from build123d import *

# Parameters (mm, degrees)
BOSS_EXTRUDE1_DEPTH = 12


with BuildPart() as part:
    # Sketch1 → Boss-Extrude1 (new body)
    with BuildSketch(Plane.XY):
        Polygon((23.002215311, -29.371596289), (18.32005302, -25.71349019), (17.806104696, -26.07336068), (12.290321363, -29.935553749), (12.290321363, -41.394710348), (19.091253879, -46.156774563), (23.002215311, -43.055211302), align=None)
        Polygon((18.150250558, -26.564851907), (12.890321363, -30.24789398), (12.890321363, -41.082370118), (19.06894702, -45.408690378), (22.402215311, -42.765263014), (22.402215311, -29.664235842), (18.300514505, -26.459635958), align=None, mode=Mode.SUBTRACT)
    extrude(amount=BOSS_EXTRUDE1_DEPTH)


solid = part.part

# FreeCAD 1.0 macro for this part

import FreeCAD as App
import Part
import Sketcher

V = App.Vector
Q = App.Units.Quantity

doc = App.newDocument("Part")
body = doc.addObject("PartDesign::Body", "Body")

sketch1 = body.newObject("Sketcher::SketchObject", "Sketch")
sketch1.AttachmentSupport = (doc.getObject("XY_Plane"), [""])
sketch1.MapMode = "FlatFace"
sketch1.addGeometry(Part.LineSegment(V(23, -29.37, 0), V(18.32, -25.71, 0)), False)
sketch1.addGeometry(Part.LineSegment(V(18.32, -25.71, 0), V(17.81, -26.07, 0)), False)
sketch1.addGeometry(Part.LineSegment(V(17.81, -26.07, 0), V(12.29, -29.94, 0)), False)
sketch1.addGeometry(Part.LineSegment(V(12.29, -29.94, 0), V(12.29, -41.39, 0)), False)
sketch1.addGeometry(Part.LineSegment(V(12.29, -41.39, 0), V(19.09, -46.16, 0)), False)
sketch1.addGeometry(Part.LineSegment(V(19.09, -46.16, 0), V(23, -43.06, 0)), False)
sketch1.addGeometry(Part.LineSegment(V(23, -43.06, 0), V(23, -29.37, 0)), False)
sketch1.addGeometry(Part.LineSegment(V(12.89, -30.25, 0), V(18.15, -26.56, 0)), False)
sketch1.addGeometry(Part.LineSegment(V(18.15, -26.56, 0), V(18.3, -26.46, 0)), False)
sketch1.addGeometry(Part.LineSegment(V(18.3, -26.46, 0), V(22.4, -29.66, 0)), False)
sketch1.addGeometry(Part.LineSegment(V(22.4, -29.66, 0), V(22.4, -42.77, 0)), False)
sketch1.addGeometry(Part.LineSegment(V(22.4, -42.77, 0), V(19.07, -45.41, 0)), False)
sketch1.addGeometry(Part.LineSegment(V(19.07, -45.41, 0), V(12.89, -41.08, 0)), False)
sketch1.addGeometry(Part.LineSegment(V(12.89, -41.08, 0), V(12.89, -30.25, 0)), False)
sketch1.addConstraint(Sketcher.Constraint("Coincident", 0, 2, 1, 1))
sketch1.addConstraint(Sketcher.Constraint("Coincident", 1, 2, 2, 1))
sketch1.addConstraint(Sketcher.Constraint("Coincident", 2, 2, 3, 1))
sketch1.addConstraint(Sketcher.Constraint("Coincident", 3, 2, 4, 1))
sketch1.addConstraint(Sketcher.Constraint("Coincident", 4, 2, 5, 1))
sketch1.addConstraint(Sketcher.Constraint("Coincident", 5, 2, 6, 1))
sketch1.addConstraint(Sketcher.Constraint("Coincident", 6, 2, 0, 1))
sketch1.addConstraint(Sketcher.Constraint("Coincident", 7, 2, 8, 1))
sketch1.addConstraint(Sketcher.Constraint("Coincident", 8, 2, 9, 1))
sketch1.addConstraint(Sketcher.Constraint("Coincident", 9, 2, 10, 1))
sketch1.addConstraint(Sketcher.Constraint("Coincident", 10, 2, 11, 1))
sketch1.addConstraint(Sketcher.Constraint("Coincident", 11, 2, 12, 1))
sketch1.addConstraint(Sketcher.Constraint("Coincident", 12, 2, 13, 1))
sketch1.addConstraint(Sketcher.Constraint("Coincident", 13, 2, 7, 1))
sketch1.addConstraint(Sketcher.Constraint("Vertical", 3))
sketch1.addConstraint(Sketcher.Constraint("Vertical", 6))
sketch1.addConstraint(Sketcher.Constraint("Vertical", 10))
sketch1.addConstraint(Sketcher.Constraint("Vertical", 13))
sketch1.addConstraint(Sketcher.Constraint("Parallel", 1, 2))
sketch1.addConstraint(Sketcher.Constraint("Parallel", 2, 7))
sketch1.addConstraint(Sketcher.Constraint("Parallel", 7, 8))
sketch1.addConstraint(Sketcher.Constraint("Parallel", 0, 9))
sketch1.addConstraint(Sketcher.Constraint("Parallel", 5, 11))
sketch1.addConstraint(Sketcher.Constraint("Parallel", 4, 12))
sketch1.addConstraint(Sketcher.Constraint("Angle", 0, Q("142 deg")))
sketch1.addConstraint(Sketcher.Constraint("Angle", 1, Q("-145 deg")))
sketch1.addConstraint(Sketcher.Constraint("Angle", 4, Q("-35 deg")))
sketch1.addConstraint(Sketcher.Constraint("DistanceX", 9, 2, 6, 2, 0.6))
sketch1.addConstraint(Sketcher.Constraint("DistanceX", 3, 2, 12, 2, 0.6))
sketch1.addConstraint(Sketcher.Constraint("DistanceX", 0, 2, 4, 2, 0.771201))
sketch1.addConstraint(Sketcher.Constraint("DistanceY", 5, 2, 3, 2, 1.660501))
sketch1.addConstraint(Sketcher.Constraint("DistanceY", 2, 2, 7, 2, 3.370702))
sketch1.addConstraint(Sketcher.Constraint("DistanceX", 8, 2, 6, 2, 4.701701))
sketch1.addConstraint(Sketcher.Constraint("Distance", 0, 5.941749))
sketch1.addConstraint(Sketcher.Constraint("Distance", 2, 6.733528))
sketch1.addConstraint(Sketcher.Constraint("Distance", 8, 0.183438))
sketch1.addConstraint(Sketcher.Constraint("Distance", 11, 4.25422))
sketch1.addConstraint(Sketcher.Constraint("Distance", 12, 7.542709))
sketch1.addConstraint(Sketcher.Constraint("DistanceY", 3, 2, 3, 1, 11.459157))
sketch1.addConstraint(Sketcher.Constraint("DistanceY", 10, 2, 10, 1, 13.101027))
sketch1.addConstraint(Sketcher.Constraint("DistanceY", 0, 2, -1, 1, 25.71349))
sketch1.addConstraint(Sketcher.Constraint("DistanceX", -1, 1, 2, 2, 12.290321))
pad1 = body.newObject("PartDesign::Pad", "Pad")
pad1.Profile = sketch1
pad1.Length = 12

doc.recompute()
